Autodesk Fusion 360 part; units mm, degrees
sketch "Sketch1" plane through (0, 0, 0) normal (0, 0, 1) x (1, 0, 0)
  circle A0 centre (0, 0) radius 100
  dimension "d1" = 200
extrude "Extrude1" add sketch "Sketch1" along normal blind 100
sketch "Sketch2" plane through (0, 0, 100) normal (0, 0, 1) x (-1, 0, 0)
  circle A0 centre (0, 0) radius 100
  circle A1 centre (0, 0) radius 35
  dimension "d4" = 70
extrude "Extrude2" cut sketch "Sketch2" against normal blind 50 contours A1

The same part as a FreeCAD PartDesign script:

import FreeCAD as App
import Part
import Sketcher

doc = App.newDocument("Part")
body = doc.addObject("PartDesign::Body", "Body")

# Sketch on XY plane
sketch1 = doc.addObject("Sketcher::SketchObject", "Sketch")
body.addObject(sketch1)
sketch1.AttachmentSupport = (doc.XY_Plane, [""])
sketch1.MapMode = "FlatFace"
sketch1.addGeometry(Part.Circle(App.Vector(0, 0, 0), App.Vector(0, 0, 1), 100), False)
sketch1.addConstraint(Sketcher.Constraint("Coincident", 0, 3, -1, 1))
sketch1.addConstraint(Sketcher.Constraint("Diameter", 0, 200.0))
pad1 = doc.addObject("PartDesign::Pad", "Pad")
body.addObject(pad1)
pad1.Profile = sketch1
pad1.Length = 100

# Sketch on XY plane
sketch2 = doc.addObject("Sketcher::SketchObject", "Sketch001")
body.addObject(sketch2)
sketch2.AttachmentSupport = (doc.XY_Plane, [""])
sketch2.MapMode = "FlatFace"
sketch2.AttachmentOffset = App.Placement(App.Vector(0, 0, 100), App.Rotation())
sketch2.addGeometry(Part.Circle(App.Vector(0, 0, 0), App.Vector(0, 0, 1), 35), False)
sketch2.addConstraint(Sketcher.Constraint("Coincident", 0, 3, -1, 1))
sketch2.addConstraint(Sketcher.Constraint("Diameter", 0, 70.0))
pocket1 = doc.addObject("PartDesign::Pocket", "Pocket")
body.addObject(pocket1)
pocket1.Profile = sketch2
pocket1.Length = 50

doc.recompute()
